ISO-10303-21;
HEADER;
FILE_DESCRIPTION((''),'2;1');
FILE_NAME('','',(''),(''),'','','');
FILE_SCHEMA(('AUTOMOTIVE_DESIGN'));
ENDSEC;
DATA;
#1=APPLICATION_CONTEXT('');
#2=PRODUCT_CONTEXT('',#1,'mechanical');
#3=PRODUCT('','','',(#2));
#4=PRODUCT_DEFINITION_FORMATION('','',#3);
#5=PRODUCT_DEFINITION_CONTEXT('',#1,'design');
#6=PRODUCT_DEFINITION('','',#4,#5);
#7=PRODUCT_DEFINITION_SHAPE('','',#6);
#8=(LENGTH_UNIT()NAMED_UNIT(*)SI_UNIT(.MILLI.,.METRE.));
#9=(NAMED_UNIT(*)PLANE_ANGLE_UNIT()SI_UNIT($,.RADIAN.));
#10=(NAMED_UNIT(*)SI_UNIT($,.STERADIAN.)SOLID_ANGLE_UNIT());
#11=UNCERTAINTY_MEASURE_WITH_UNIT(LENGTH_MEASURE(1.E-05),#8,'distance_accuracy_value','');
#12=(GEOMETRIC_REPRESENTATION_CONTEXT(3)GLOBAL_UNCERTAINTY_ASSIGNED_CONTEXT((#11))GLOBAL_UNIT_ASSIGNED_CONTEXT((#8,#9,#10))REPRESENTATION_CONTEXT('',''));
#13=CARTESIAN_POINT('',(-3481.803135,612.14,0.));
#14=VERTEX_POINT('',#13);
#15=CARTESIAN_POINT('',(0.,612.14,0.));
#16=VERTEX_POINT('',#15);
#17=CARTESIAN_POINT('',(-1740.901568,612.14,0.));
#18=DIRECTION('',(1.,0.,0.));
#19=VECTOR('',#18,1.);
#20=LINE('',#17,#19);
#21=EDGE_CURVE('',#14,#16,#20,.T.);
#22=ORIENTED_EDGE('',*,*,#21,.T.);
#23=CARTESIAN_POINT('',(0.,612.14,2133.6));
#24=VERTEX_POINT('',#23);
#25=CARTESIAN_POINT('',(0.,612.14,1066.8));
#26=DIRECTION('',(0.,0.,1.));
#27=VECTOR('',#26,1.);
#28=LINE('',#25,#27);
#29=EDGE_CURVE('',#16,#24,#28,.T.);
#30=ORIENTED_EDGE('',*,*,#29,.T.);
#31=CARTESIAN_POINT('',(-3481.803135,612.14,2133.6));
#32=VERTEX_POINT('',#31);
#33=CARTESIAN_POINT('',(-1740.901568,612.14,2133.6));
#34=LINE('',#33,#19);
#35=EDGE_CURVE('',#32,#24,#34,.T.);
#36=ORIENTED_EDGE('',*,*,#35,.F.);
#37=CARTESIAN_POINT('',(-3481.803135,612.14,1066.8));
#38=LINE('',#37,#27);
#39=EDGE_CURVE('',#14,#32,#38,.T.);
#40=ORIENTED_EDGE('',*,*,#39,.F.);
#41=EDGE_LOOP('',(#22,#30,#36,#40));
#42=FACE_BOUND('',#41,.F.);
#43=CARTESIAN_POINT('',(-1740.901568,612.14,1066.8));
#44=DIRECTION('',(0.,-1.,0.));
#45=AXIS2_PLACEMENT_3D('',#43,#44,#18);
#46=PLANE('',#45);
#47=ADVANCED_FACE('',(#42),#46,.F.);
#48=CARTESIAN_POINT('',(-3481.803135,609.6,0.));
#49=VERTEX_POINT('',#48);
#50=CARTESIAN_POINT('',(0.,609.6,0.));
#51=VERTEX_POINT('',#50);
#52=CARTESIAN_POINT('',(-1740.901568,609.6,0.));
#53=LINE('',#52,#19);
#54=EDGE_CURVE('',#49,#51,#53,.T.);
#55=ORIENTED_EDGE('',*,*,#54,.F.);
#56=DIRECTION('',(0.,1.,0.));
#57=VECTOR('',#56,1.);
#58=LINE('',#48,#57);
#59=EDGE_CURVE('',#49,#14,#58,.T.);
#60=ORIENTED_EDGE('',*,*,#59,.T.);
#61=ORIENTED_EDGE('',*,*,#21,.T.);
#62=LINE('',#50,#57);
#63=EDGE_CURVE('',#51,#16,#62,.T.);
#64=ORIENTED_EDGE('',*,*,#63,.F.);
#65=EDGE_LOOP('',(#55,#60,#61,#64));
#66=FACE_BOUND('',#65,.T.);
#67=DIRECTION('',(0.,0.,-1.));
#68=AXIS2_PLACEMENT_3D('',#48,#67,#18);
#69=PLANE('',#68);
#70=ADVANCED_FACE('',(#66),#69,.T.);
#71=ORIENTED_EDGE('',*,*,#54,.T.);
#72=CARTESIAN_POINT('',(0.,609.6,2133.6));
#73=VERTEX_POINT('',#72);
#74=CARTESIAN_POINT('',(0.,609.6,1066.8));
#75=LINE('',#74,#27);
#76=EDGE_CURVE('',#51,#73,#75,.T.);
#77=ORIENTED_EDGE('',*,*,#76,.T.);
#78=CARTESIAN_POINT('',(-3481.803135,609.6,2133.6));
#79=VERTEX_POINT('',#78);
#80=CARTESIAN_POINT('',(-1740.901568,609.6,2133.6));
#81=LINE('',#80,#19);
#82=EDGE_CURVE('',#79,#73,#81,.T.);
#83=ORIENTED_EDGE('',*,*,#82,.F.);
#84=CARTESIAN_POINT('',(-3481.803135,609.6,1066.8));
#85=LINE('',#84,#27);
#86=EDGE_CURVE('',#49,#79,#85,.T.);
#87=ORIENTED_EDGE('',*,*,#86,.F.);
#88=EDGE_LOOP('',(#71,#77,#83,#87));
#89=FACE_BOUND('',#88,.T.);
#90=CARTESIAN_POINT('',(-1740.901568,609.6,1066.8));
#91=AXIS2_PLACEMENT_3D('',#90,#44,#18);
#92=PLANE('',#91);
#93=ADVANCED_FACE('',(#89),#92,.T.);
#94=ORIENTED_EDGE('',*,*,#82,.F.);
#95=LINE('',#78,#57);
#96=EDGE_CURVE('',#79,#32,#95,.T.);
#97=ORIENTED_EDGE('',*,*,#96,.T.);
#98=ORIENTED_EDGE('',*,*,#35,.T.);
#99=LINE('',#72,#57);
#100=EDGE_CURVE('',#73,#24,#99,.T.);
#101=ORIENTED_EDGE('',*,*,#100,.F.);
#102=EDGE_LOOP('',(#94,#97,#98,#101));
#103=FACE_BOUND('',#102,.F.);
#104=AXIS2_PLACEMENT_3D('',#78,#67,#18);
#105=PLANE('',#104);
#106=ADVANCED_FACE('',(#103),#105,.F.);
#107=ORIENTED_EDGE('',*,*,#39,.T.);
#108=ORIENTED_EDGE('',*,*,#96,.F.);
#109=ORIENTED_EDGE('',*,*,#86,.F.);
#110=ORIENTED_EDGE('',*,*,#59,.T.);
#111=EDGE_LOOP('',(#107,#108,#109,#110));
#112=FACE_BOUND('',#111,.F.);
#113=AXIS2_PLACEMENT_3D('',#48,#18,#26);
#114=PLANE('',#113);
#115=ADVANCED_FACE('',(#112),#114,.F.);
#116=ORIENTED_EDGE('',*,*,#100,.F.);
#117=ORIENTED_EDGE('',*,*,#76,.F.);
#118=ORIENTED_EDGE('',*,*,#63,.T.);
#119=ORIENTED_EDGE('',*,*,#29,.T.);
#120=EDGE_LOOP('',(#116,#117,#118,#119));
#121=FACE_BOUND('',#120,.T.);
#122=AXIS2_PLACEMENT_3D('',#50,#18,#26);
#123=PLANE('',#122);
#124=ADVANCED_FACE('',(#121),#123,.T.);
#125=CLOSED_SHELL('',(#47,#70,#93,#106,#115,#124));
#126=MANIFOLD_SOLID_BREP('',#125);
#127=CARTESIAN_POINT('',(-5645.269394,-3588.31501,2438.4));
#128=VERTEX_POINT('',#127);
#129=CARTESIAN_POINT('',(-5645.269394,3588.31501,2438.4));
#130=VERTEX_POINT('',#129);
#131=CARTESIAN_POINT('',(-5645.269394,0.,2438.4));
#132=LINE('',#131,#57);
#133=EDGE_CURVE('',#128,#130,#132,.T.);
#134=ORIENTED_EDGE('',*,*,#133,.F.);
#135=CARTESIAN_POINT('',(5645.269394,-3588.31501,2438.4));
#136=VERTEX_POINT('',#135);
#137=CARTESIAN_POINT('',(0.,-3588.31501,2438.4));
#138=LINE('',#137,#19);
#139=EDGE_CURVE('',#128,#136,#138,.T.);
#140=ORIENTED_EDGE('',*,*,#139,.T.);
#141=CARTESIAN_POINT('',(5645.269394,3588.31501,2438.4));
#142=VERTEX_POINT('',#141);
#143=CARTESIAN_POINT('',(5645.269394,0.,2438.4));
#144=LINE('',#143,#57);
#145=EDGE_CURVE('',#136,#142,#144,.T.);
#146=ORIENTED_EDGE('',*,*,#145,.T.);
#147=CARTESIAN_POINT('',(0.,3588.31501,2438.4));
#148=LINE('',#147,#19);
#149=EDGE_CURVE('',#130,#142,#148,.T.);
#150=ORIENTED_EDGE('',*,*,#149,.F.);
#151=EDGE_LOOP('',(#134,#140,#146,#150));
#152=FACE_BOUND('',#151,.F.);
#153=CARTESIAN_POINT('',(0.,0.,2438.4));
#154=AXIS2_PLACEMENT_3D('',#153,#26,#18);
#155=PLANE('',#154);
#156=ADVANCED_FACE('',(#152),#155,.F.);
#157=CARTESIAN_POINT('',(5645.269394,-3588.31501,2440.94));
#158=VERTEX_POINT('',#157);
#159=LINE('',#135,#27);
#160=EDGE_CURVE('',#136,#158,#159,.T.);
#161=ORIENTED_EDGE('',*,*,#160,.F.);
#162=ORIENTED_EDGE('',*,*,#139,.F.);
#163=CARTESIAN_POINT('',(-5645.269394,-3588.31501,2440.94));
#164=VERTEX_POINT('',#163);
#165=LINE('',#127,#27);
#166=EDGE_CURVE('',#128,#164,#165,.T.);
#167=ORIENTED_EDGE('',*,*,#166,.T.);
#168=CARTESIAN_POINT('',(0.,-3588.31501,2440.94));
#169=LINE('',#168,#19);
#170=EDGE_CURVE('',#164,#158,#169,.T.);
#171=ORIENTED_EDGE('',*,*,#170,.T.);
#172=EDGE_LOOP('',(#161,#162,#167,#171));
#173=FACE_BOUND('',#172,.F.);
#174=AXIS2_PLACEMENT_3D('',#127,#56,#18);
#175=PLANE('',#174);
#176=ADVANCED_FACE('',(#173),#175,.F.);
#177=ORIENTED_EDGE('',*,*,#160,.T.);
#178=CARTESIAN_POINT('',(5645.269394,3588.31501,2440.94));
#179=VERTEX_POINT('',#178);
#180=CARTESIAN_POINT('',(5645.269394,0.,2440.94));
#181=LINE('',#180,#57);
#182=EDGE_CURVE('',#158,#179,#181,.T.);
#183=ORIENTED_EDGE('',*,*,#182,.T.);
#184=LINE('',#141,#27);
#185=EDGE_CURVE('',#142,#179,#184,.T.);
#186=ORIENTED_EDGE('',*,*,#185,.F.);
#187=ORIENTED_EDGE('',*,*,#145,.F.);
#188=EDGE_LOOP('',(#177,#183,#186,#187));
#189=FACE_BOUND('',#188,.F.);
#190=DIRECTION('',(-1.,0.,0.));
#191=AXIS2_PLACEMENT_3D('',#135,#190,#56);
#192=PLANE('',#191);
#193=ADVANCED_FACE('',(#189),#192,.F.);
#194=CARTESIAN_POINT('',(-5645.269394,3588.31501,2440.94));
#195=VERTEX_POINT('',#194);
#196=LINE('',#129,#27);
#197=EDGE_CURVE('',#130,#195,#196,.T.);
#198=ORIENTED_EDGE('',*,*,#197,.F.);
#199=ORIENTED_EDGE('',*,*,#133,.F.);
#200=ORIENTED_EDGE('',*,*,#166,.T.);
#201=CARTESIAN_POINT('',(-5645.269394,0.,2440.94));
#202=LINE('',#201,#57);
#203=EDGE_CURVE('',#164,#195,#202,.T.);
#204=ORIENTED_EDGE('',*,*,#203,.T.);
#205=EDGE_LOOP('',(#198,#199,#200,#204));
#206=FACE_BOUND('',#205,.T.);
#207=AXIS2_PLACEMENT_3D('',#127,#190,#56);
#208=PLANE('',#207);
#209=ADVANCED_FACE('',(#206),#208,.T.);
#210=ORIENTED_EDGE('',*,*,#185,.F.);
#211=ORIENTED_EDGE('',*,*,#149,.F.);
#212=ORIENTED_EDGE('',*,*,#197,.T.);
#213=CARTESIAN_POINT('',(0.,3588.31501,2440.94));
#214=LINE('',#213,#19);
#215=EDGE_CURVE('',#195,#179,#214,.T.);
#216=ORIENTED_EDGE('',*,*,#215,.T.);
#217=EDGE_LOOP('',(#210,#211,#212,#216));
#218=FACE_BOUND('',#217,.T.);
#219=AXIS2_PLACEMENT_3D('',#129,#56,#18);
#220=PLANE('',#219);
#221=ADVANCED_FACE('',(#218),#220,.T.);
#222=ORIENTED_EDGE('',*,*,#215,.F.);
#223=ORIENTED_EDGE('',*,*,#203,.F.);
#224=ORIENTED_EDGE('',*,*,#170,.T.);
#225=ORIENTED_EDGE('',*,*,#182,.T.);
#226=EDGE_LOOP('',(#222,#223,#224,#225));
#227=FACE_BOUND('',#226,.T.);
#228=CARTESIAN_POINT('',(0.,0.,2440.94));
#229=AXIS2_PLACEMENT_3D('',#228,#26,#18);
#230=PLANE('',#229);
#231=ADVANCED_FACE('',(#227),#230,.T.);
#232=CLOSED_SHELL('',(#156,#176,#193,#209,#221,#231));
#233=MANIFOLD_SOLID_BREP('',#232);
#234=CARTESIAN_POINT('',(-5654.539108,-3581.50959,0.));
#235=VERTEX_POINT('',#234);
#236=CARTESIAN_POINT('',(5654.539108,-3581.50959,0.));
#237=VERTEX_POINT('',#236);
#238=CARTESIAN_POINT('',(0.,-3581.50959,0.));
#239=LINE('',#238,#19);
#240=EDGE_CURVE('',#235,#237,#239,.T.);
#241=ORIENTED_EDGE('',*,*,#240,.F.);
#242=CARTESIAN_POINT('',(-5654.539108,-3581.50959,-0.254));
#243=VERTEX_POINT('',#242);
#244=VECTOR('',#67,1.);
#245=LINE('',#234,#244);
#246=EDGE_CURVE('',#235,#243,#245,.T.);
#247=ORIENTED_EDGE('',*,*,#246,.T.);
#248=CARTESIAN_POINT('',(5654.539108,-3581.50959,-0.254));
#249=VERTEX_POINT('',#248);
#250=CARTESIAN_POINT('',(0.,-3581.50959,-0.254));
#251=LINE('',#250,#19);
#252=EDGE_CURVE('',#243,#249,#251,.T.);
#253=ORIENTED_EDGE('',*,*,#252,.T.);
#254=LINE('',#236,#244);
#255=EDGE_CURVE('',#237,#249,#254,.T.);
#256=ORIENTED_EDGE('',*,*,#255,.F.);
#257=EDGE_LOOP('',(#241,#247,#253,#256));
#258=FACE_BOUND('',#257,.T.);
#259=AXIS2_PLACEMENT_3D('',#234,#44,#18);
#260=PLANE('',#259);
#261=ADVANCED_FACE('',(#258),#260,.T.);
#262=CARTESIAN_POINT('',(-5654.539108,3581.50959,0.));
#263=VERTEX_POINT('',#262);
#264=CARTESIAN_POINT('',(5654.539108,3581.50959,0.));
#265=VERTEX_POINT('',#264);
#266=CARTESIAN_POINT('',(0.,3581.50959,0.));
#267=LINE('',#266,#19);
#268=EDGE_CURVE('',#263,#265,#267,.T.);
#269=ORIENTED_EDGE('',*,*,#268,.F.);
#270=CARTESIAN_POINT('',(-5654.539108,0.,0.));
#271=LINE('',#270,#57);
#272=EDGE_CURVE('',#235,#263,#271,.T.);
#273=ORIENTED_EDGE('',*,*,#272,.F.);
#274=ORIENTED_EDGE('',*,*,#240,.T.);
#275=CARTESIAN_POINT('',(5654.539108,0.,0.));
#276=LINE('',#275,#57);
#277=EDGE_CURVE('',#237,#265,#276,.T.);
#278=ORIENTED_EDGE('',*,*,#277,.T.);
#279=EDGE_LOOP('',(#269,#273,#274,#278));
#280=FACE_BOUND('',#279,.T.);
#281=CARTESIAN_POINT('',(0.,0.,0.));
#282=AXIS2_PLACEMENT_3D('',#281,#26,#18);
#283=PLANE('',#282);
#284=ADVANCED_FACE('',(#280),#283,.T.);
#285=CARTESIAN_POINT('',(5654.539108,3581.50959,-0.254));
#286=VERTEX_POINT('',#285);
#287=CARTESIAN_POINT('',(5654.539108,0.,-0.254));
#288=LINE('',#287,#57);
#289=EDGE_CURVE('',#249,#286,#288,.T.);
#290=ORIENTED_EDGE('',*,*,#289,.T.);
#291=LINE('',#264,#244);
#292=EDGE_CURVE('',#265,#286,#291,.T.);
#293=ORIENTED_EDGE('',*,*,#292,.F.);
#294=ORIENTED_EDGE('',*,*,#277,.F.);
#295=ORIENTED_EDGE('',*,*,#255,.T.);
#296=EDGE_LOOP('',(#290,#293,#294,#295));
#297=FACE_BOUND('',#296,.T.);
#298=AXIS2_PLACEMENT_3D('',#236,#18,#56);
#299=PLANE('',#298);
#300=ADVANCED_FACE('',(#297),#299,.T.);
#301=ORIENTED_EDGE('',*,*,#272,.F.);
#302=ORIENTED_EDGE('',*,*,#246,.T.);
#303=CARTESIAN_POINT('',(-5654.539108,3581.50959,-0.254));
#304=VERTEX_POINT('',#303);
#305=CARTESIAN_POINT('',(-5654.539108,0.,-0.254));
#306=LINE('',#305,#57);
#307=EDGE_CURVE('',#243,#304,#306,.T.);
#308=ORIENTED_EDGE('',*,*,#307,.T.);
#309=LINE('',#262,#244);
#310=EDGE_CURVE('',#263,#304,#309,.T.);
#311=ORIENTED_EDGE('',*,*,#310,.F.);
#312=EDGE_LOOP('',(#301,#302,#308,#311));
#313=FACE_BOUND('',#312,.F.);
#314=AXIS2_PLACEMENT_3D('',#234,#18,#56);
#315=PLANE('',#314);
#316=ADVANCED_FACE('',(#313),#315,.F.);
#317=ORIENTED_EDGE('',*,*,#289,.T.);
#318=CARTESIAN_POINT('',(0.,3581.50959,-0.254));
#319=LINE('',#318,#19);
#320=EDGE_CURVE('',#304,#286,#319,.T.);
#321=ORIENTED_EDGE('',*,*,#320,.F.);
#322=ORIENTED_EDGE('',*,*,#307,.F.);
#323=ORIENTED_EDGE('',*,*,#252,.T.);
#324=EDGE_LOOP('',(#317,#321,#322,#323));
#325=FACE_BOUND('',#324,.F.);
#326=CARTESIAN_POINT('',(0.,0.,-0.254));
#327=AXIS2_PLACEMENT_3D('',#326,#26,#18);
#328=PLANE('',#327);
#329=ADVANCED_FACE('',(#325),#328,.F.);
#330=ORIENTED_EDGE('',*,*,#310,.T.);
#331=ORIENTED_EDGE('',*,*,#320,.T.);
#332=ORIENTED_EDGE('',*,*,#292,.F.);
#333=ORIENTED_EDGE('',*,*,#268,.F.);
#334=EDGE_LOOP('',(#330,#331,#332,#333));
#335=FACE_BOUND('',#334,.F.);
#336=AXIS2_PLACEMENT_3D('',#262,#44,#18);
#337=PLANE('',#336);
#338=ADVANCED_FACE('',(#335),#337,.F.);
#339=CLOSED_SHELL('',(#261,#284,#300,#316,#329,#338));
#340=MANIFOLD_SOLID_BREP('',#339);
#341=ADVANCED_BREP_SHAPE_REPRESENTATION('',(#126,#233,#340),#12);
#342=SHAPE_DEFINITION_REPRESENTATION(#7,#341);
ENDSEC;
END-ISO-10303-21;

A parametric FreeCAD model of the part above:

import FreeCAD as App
import Part
import Sketcher

V = App.Vector
Q = App.Units.Quantity


def add_polygon(sketch, points):
    """Adds a closed chain of lines whose ends are joined by coincident constraints."""
    first, n = sketch.GeometryCount, len(points)
    for a, b in zip(points, points[1:] + points[:1]):
        sketch.addGeometry(Part.LineSegment(App.Vector(*a, 0), App.Vector(*b, 0)), False)
    for i in range(n):
        sketch.addConstraint(Sketcher.Constraint("Coincident", first + i, 2, first + (i + 1) % n, 1))

doc = App.newDocument("Part")
params = doc.addObject("Spreadsheet::Sheet", "Params")
for row, (alias, value) in enumerate([
    ("sketch1_height", "84 in"),
    ("pad1_length", "0.1 in"),
    ("pad2_length", "0.01 in"),
    ("pad3_length", "0.1 in"),
], start=1):
    params.set(f"A{row}", alias)
    params.set(f"B{row}", "=" + value)
    params.setAlias(f"B{row}", alias)

body = doc.addObject("PartDesign::Body", "Body")

sketch1 = doc.addObject("Sketcher::SketchObject", "Sketch")
body.addObject(sketch1)
sketch1.AttachmentSupport = (doc.XZ_Plane, [""])
sketch1.MapMode = "FlatFace"
sketch1.AttachmentOffset = App.Placement(V(0, 0, -24 * 25.4), App.Rotation())
add_polygon(sketch1, [(-3482, 2134), (-3482, 0), (0, 0), (0, 2134)])
sketch1.addConstraint(Sketcher.Constraint("Vertical", 0))
sketch1.addConstraint(Sketcher.Constraint("Horizontal", 1))
sketch1.addConstraint(Sketcher.Constraint("Vertical", 2))
sketch1.addConstraint(Sketcher.Constraint("Horizontal", 3))
sketch1.addConstraint(Sketcher.Constraint("Coincident", 1, 2, -1, 1))
sketch1.addConstraint(Sketcher.Constraint("DistanceY", 0, 2, 0, 1, Q("84 in")))
sketch1.addConstraint(Sketcher.Constraint("DistanceX", 1, 1, 1, 2, Q("3481.803135 mm")))
sketch1.setExpression("Constraints[9]", "Params.sketch1_height")
pad1 = doc.addObject("PartDesign::Pad", "Pad")
body.addObject(pad1)
pad1.Profile = sketch1
pad1.setExpression("Length", "Params.pad1_length")
pad1.Reversed = True
body2 = doc.addObject("PartDesign::Body", "Body001")

sketch2 = doc.addObject("Sketcher::SketchObject", "Sketch001")
body2.addObject(sketch2)
sketch2.AttachmentSupport = (doc.getObject("XY_Plane001"), [""])
sketch2.MapMode = "FlatFace"
add_polygon(sketch2, [(-5655, 3582), (-5655, -3582), (5655, -3582), (5655, 3582)])
sketch2.addConstraint(Sketcher.Constraint("Vertical", 0))
sketch2.addConstraint(Sketcher.Constraint("Horizontal", 1))
sketch2.addConstraint(Sketcher.Constraint("Vertical", 2))
sketch2.addConstraint(Sketcher.Constraint("Horizontal", 3))
sketch2.addConstraint(Sketcher.Constraint("Symmetric", 0, 2, 2, 2, -1, 1))
sketch2.addConstraint(Sketcher.Constraint("DistanceX", 1, 1, 1, 2, Q("445.2392999 in")))
sketch2.addConstraint(Sketcher.Constraint("DistanceY", 0, 2, 0, 1, Q("7163.01918 mm")))
pad2 = doc.addObject("PartDesign::Pad", "Pad001")
body2.addObject(pad2)
pad2.Profile = sketch2
pad2.setExpression("Length", "Params.pad2_length")
pad2.Reversed = True
body3 = doc.addObject("PartDesign::Body", "Body002")

sketch3 = doc.addObject("Sketcher::SketchObject", "Sketch002")
body3.addObject(sketch3)
sketch3.AttachmentSupport = (doc.getObject("XY_Plane002"), [""])
sketch3.MapMode = "FlatFace"
sketch3.AttachmentOffset = App.Placement(V(0, 0, 96 * 25.4), App.Rotation())
add_polygon(sketch3, [(-5645, 3588), (-5645, -3588), (5645, -3588), (5645, 3588)])
sketch3.addConstraint(Sketcher.Constraint("Vertical", 0))
sketch3.addConstraint(Sketcher.Constraint("Horizontal", 1))
sketch3.addConstraint(Sketcher.Constraint("Vertical", 2))
sketch3.addConstraint(Sketcher.Constraint("Horizontal", 3))
sketch3.addConstraint(Sketcher.Constraint("Symmetric", 0, 2, 2, 2, -1, 1))
sketch3.addConstraint(Sketcher.Constraint("DistanceY", 0, 2, 0, 1, Q("7176.63002 mm")))
sketch3.addConstraint(Sketcher.Constraint("DistanceX", 1, 1, 1, 2, Q("11290.538788 mm")))
pad3 = doc.addObject("PartDesign::Pad", "Pad002")
body3.addObject(pad3)
pad3.Profile = sketch3
pad3.setExpression("Length", "Params.pad3_length")

doc.recompute()
